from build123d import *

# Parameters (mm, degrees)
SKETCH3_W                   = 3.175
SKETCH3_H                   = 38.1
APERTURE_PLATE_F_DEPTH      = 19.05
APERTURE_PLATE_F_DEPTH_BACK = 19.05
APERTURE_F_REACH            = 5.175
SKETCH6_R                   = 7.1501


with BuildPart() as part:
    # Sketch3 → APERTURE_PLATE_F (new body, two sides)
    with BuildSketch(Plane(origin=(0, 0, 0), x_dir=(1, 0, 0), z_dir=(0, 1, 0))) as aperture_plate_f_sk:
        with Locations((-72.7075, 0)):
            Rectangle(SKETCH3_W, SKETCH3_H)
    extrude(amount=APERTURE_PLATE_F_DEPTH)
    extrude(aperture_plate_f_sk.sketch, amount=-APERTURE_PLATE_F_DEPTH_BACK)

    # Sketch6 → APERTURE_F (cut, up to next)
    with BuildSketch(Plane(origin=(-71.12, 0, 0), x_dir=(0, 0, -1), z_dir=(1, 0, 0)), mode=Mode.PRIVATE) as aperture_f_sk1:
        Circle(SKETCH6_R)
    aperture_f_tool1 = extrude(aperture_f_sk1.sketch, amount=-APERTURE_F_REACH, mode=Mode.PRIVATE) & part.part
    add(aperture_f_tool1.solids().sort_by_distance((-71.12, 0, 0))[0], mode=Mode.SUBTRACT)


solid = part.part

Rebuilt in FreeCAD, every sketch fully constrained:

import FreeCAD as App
import Part
import Sketcher
from FreeCAD import Vector
Q = App.Units.Quantity


def add_polygon(sketch, points):
    """Adds a closed chain of lines whose ends are joined by coincident constraints."""
    first, n = sketch.GeometryCount, len(points)
    for a, b in zip(points, points[1:] + points[:1]):
        sketch.addGeometry(Part.LineSegment(App.Vector(*a, 0), App.Vector(*b, 0)), False)
    for i in range(n):
        sketch.addConstraint(Sketcher.Constraint("Coincident", first + i, 2, first + (i + 1) % n, 1))

doc = App.newDocument("Part")
body = doc.addObject("PartDesign::Body", "Body")

# Sketch on XZ plane
sketch1 = body.newObject("Sketcher::SketchObject", "Sketch")
sketch1.AttachmentSupport = (doc.getObject("XZ_Plane"), [""])
sketch1.MapMode = "FlatFace"
add_polygon(sketch1, [(-74.295, -19.05), (-74.295, 19.05), (-71.12, 19.05), (-71.12, -19.05)])  # lines 0-3
sketch1.addConstraint(Sketcher.Constraint("Vertical", 0))
sketch1.addConstraint(Sketcher.Constraint("Horizontal", 1))
sketch1.addConstraint(Sketcher.Constraint("Vertical", 2))
sketch1.addConstraint(Sketcher.Constraint("Horizontal", 3))
sketch1.addConstraint(Sketcher.Constraint("DistanceY", 0, 1, 0, 2, Q("1.5 in")))
sketch1.addConstraint(Sketcher.Constraint("DistanceX", 1, 2, -1, 1, Q("2.8 in")))
sketch1.addConstraint(Sketcher.Constraint("DistanceX", 1, 1, 1, 2, Q("0.125 in")))
sketch1.addConstraint(Sketcher.Constraint("DistanceY", -1, 1, 0, 2, Q("0.75 in")))
pad1 = body.newObject("PartDesign::Pad", "Pad")
pad1.Profile = sketch1
pad1.Type = "TwoLengths"
pad1.Length = Q("0.75 in")
pad1.Length2 = Q("0.75 in")
pad1.Reversed = True

# Sketch on YZ plane
sketch2 = body.newObject("Sketcher::SketchObject", "Sketch001")
sketch2.AttachmentSupport = (doc.getObject("YZ_Plane"), [""])
sketch2.MapMode = "FlatFace"
sketch2.AttachmentOffset = App.Placement(Vector(0, 0, -2.8 * 25.4), App.Rotation())
sketch2.addGeometry(Part.Circle(Vector(0, 0, 0), Vector(0, 0, 1), 7.1501), False)
sketch2.addConstraint(Sketcher.Constraint("Coincident", 0, 3, -1, 1))
sketch2.addConstraint(Sketcher.Constraint("Diameter", 0, Q("0.563 in")))
pocket1 = body.newObject("PartDesign::Pocket", "Pocket")
pocket1.Profile = sketch2
pocket1.Type = "UpToFirst"

doc.recompute()
